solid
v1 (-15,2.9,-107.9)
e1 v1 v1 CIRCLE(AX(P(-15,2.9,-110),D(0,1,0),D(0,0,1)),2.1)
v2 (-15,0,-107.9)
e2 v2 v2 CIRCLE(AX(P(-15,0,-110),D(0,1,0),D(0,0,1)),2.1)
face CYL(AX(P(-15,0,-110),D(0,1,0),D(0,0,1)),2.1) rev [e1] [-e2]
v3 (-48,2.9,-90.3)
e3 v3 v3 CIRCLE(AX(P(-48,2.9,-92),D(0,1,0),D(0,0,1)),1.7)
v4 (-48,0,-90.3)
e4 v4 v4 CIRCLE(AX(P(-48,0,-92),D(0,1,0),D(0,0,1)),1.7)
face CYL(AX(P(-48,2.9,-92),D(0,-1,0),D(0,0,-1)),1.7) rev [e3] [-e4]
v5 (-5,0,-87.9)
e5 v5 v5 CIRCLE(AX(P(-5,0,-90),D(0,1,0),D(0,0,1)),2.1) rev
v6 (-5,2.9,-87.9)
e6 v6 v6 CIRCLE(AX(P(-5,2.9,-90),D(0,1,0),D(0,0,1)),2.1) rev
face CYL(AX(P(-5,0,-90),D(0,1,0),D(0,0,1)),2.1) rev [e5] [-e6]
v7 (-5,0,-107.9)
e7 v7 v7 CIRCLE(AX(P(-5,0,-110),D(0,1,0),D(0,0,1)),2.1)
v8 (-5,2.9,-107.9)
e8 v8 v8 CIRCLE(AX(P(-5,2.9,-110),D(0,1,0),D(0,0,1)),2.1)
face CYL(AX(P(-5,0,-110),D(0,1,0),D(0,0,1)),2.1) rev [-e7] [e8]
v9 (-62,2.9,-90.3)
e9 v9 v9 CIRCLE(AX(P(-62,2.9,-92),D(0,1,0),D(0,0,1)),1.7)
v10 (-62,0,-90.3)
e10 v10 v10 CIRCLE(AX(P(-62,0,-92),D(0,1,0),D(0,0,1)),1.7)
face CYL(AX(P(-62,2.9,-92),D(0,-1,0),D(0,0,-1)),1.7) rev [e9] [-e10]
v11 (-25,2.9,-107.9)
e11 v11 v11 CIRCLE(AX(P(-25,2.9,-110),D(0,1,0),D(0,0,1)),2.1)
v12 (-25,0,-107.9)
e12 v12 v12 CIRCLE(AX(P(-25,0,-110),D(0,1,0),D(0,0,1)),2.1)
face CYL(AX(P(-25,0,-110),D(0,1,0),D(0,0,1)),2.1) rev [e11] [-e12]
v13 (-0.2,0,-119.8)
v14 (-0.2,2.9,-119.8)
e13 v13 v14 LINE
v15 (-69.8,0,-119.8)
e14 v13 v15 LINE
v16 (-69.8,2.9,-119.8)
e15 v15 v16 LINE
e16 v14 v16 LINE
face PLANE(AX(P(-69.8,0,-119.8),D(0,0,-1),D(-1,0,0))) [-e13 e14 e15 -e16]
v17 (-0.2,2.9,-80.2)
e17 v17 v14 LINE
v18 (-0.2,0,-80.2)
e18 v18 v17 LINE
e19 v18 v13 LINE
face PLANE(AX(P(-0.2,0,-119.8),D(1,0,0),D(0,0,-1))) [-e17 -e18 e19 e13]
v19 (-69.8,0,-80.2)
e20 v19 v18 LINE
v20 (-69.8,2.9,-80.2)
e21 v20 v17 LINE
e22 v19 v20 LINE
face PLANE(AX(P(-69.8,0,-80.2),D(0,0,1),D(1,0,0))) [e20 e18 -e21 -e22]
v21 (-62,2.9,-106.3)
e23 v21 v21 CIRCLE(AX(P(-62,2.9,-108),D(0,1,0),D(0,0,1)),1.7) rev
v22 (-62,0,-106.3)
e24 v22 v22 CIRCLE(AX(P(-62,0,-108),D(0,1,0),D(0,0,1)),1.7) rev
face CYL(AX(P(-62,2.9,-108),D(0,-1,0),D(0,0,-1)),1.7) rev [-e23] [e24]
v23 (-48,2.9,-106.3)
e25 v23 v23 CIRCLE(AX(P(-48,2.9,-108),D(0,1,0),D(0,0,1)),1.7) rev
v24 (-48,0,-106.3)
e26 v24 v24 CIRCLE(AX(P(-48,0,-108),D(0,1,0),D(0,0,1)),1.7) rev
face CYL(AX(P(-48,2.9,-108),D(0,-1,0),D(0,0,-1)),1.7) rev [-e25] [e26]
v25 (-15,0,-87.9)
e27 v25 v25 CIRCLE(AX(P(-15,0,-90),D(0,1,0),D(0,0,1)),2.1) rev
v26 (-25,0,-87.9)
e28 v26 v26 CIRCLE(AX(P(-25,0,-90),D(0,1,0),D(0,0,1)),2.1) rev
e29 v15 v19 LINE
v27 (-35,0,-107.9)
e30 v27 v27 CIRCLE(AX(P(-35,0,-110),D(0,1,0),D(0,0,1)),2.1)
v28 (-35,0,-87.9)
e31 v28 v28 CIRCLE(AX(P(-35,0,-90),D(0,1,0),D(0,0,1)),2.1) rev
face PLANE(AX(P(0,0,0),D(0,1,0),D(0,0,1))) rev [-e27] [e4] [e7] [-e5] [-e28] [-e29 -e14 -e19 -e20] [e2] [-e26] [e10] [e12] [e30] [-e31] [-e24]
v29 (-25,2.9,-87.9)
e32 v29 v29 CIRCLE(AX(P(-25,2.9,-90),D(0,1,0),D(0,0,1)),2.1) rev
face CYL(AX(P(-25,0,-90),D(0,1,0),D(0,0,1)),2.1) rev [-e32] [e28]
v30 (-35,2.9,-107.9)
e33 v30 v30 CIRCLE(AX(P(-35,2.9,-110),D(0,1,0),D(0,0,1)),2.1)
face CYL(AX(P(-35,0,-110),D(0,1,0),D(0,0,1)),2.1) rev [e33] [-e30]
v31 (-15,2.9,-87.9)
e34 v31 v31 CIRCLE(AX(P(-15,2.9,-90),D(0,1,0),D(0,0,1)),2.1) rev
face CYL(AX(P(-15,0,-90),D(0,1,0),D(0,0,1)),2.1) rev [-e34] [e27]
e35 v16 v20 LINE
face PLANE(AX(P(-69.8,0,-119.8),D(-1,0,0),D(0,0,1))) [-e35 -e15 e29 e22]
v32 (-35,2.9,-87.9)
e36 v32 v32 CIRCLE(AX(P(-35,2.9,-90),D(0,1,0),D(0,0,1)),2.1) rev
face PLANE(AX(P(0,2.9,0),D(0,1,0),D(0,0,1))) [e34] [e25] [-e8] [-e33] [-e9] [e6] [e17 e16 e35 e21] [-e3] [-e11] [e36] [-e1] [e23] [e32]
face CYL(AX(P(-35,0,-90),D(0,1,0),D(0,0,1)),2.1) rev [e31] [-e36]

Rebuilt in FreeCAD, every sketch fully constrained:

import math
import FreeCAD as App
import Part
import Sketcher
from FreeCAD import Vector

doc = App.newDocument("Part")
body = doc.addObject("PartDesign::Body", "Body")

# Sketch on XZ plane
sketch1 = body.newObject("Sketcher::SketchObject", "Sketch")
sketch1.AttachmentSupport = (doc.getObject("XZ_Plane"), [""])
sketch1.MapMode = "FlatFace"
sketch1.addGeometry(Part.LineSegment(Vector(-70, -80, 0), Vector(-20, -80, 0)), False)
sketch1.addGeometry(Part.LineSegment(Vector(-20, -80, 0), Vector(-20, -120, 0)), False)
sketch1.addGeometry(Part.LineSegment(Vector(-20, -120, 0), Vector(-70, -120, 0)), False)
sketch1.addGeometry(Part.LineSegment(Vector(-70, -120, 0), Vector(-70, -80, 0)), False)
sketch1.addGeometry(Part.ArcOfCircle(Part.Circle(Vector(-48, -92, 0), Vector(0, 0, 1), 1.7), math.radians(90), math.radians(360)), False)
sketch1.addGeometry(Part.ArcOfCircle(Part.Circle(Vector(-48, -92, 0), Vector(0, 0, 1), 1.7), math.radians(0), math.radians(90)), False)
sketch1.addGeometry(Part.ArcOfCircle(Part.Circle(Vector(-62, -92, 0), Vector(0, 0, 1), 1.7), math.radians(180), math.radians(360)), False)
sketch1.addGeometry(Part.ArcOfCircle(Part.Circle(Vector(-62, -92, 0), Vector(0, 0, 1), 1.7), math.radians(0), math.radians(90)), False)
sketch1.addGeometry(Part.ArcOfCircle(Part.Circle(Vector(-62, -92, 0), Vector(0, 0, 1), 1.7), math.radians(90), math.radians(180)), False)
sketch1.addGeometry(Part.Circle(Vector(-62, -108, 0), Vector(0, 0, 1), 1.7), False)
sketch1.addGeometry(Part.Circle(Vector(-48, -108, 0), Vector(0, 0, 1), 1.7), False)
sketch1.addConstraint(Sketcher.Constraint("Coincident", 0, 2, 1, 1))
sketch1.addConstraint(Sketcher.Constraint("Coincident", 1, 2, 2, 1))
sketch1.addConstraint(Sketcher.Constraint("Coincident", 2, 2, 3, 1))
sketch1.addConstraint(Sketcher.Constraint("Coincident", 3, 2, 0, 1))
sketch1.addConstraint(Sketcher.Constraint("Tangent", 4, 1, 5, 2))
sketch1.addConstraint(Sketcher.Constraint("Coincident", 5, 1, 4, 2))
sketch1.addConstraint(Sketcher.Constraint("Tangent", 6, 2, 7, 1))
sketch1.addConstraint(Sketcher.Constraint("Tangent", 7, 2, 8, 1))
sketch1.addConstraint(Sketcher.Constraint("Tangent", 8, 2, 6, 1))
sketch1.addConstraint(Sketcher.Constraint("Horizontal", 0))
sketch1.addConstraint(Sketcher.Constraint("Vertical", 1))
sketch1.addConstraint(Sketcher.Constraint("Horizontal", 2))
sketch1.addConstraint(Sketcher.Constraint("Vertical", 3))
sketch1.addConstraint(Sketcher.Constraint("Equal", 5, 6))
sketch1.addConstraint(Sketcher.Constraint("Equal", 8, 9))
sketch1.addConstraint(Sketcher.Constraint("Equal", 9, 10))
sketch1.addConstraint(Sketcher.Constraint("Horizontal", 5, 3, 6, 3))
sketch1.addConstraint(Sketcher.Constraint("Horizontal", 9, 3, 10, 3))
sketch1.addConstraint(Sketcher.Constraint("Horizontal", 8, 3, 5, 1))
sketch1.addConstraint(Sketcher.Constraint("Horizontal", 5, 1, 6, 2))
sketch1.addConstraint(Sketcher.Constraint("Horizontal", 6, 2, 8, 2))
sketch1.addConstraint(Sketcher.Constraint("Vertical", 8, 3, 9, 3))
sketch1.addConstraint(Sketcher.Constraint("Vertical", 5, 3, 10, 3))
sketch1.addConstraint(Sketcher.Constraint("Vertical", 10, 3, 4, 1))
sketch1.addConstraint(Sketcher.Constraint("Vertical", 9, 3, 7, 2))
sketch1.addConstraint(Sketcher.Constraint("Diameter", 9, 3.4))
sketch1.addConstraint(Sketcher.Constraint("DistanceX", 0, 1, 0, 2, 50.0))
sketch1.addConstraint(Sketcher.Constraint("DistanceY", 1, 2, 1, 1, 40.0))
sketch1.addConstraint(Sketcher.Constraint("DistanceX", 4, 3, -1, 1, 48.0))
sketch1.addConstraint(Sketcher.Constraint("DistanceY", 4, 3, -1, 1, 92.0))
sketch1.addConstraint(Sketcher.Constraint("DistanceX", 6, 3, -1, 1, 62.0))
sketch1.addConstraint(Sketcher.Constraint("DistanceY", 9, 3, -1, 1, 108.0))
sketch1.addConstraint(Sketcher.Constraint("DistanceX", 0, 2, -1, 1, 20.0))
sketch1.addConstraint(Sketcher.Constraint("DistanceY", 0, 2, -1, 1, 80.0))
pad1 = body.newObject("PartDesign::Pad", "Pad")
pad1.Profile = sketch1
pad1.Length = 2.9
pad1.Reversed = True

# Sketch on XZ plane
sketch2 = body.newObject("Sketcher::SketchObject", "Sketch001")
sketch2.AttachmentSupport = (doc.getObject("XZ_Plane"), [""])
sketch2.MapMode = "FlatFace"
sketch2.AttachmentOffset = App.Placement(Vector(0, 0, -2.9), App.Rotation())
sketch2.addGeometry(Part.Circle(Vector(-25, -110, 0), Vector(0, 0, 1), 2.1), False)
sketch2.addGeometry(Part.Circle(Vector(-25, -90, 0), Vector(0, 0, 1), 2.1), False)
sketch2.addGeometry(Part.Circle(Vector(-35, -90, 0), Vector(0, 0, 1), 2.1), False)
sketch2.addGeometry(Part.Circle(Vector(-35, -110, 0), Vector(0, 0, 1), 2.1), False)
sketch2.addConstraint(Sketcher.Constraint("Equal", 0, 1))
sketch2.addConstraint(Sketcher.Constraint("Equal", 1, 2))
sketch2.addConstraint(Sketcher.Constraint("Equal", 2, 3))
sketch2.addConstraint(Sketcher.Constraint("Horizontal", 1, 3, 2, 3))
sketch2.addConstraint(Sketcher.Constraint("Horizontal", 0, 3, 3, 3))
sketch2.addConstraint(Sketcher.Constraint("Vertical", 0, 3, 1, 3))
sketch2.addConstraint(Sketcher.Constraint("Vertical", 2, 3, 3, 3))
sketch2.addConstraint(Sketcher.Constraint("Diameter", 0, 4.2))
sketch2.addConstraint(Sketcher.Constraint("DistanceX", 0, 3, -1, 1, 25.0))
sketch2.addConstraint(Sketcher.Constraint("DistanceY", 0, 3, -1, 1, 110.0))
sketch2.addConstraint(Sketcher.Constraint("DistanceY", 1, 3, -1, 1, 90.0))
sketch2.addConstraint(Sketcher.Constraint("DistanceX", 2, 3, -1, 1, 35.0))
pocket1 = body.newObject("PartDesign::Pocket", "Pocket")
pocket1.Profile = sketch2
pocket1.Length = 2.9
pocket1.Reversed = True

# Sketch on XZ plane
sketch3 = body.newObject("Sketcher::SketchObject", "Sketch002")
sketch3.AttachmentSupport = (doc.getObject("XZ_Plane"), [""])
sketch3.MapMode = "FlatFace"
sketch3.AttachmentOffset = App.Placement(Vector(0, 0, -2.9), App.Rotation())
sketch3.addGeometry(Part.LineSegment(Vector(-20, -120, 0), Vector(-20, -80, 0)), False)
sketch3.addGeometry(Part.LineSegment(Vector(-20, -80, 0), Vector(0, -80, 0)), False)
sketch3.addGeometry(Part.LineSegment(Vector(0, -80, 0), Vector(0, -120, 0)), False)
sketch3.addGeometry(Part.LineSegment(Vector(0, -120, 0), Vector(-20, -120, 0)), False)
sketch3.addGeometry(Part.Circle(Vector(-15, -90, 0), Vector(0, 0, 1), 2.1), False)
sketch3.addGeometry(Part.Circle(Vector(-5, -90, 0), Vector(0, 0, 1), 2.1), False)
sketch3.addGeometry(Part.Circle(Vector(-15, -110, 0), Vector(0, 0, 1), 2.1), False)
sketch3.addGeometry(Part.Circle(Vector(-5, -110, 0), Vector(0, 0, 1), 2.1), False)
sketch3.addConstraint(Sketcher.Constraint("Coincident", 0, 2, 1, 1))
sketch3.addConstraint(Sketcher.Constraint("Coincident", 1, 2, 2, 1))
sketch3.addConstraint(Sketcher.Constraint("Coincident", 2, 2, 3, 1))
sketch3.addConstraint(Sketcher.Constraint("Coincident", 3, 2, 0, 1))
sketch3.addConstraint(Sketcher.Constraint("Vertical", 0))
sketch3.addConstraint(Sketcher.Constraint("Horizontal", 1))
sketch3.addConstraint(Sketcher.Constraint("Vertical", 2))
sketch3.addConstraint(Sketcher.Constraint("Horizontal", 3))
sketch3.addConstraint(Sketcher.Constraint("Equal", 4, 5))
sketch3.addConstraint(Sketcher.Constraint("Equal", 5, 6))
sketch3.addConstraint(Sketcher.Constraint("Equal", 6, 7))
sketch3.addConstraint(Sketcher.Constraint("PointOnObject", 1, 2, -2))
sketch3.addConstraint(Sketcher.Constraint("Horizontal", 4, 3, 5, 3))
sketch3.addConstraint(Sketcher.Constraint("Horizontal", 6, 3, 7, 3))
sketch3.addConstraint(Sketcher.Constraint("Vertical", 4, 3, 6, 3))
sketch3.addConstraint(Sketcher.Constraint("Vertical", 5, 3, 7, 3))
sketch3.addConstraint(Sketcher.Constraint("Diameter", 4, 4.2))
sketch3.addConstraint(Sketcher.Constraint("DistanceX", 1, 1, 1, 2, 20.0))
sketch3.addConstraint(Sketcher.Constraint("DistanceY", 0, 1, 0, 2, 40.0))
sketch3.addConstraint(Sketcher.Constraint("DistanceX", 4, 3, -1, 1, 15.0))
sketch3.addConstraint(Sketcher.Constraint("DistanceY", 4, 3, -1, 1, 90.0))
sketch3.addConstraint(Sketcher.Constraint("DistanceX", 5, 3, -1, 1, 5.0))
sketch3.addConstraint(Sketcher.Constraint("DistanceY", 6, 3, -1, 1, 110.0))
sketch3.addConstraint(Sketcher.Constraint("DistanceY", 0, 2, -1, 1, 80.0))
pad2 = body.newObject("PartDesign::Pad", "Pad001")
pad2.Profile = sketch3
pad2.Length = 2.9

# Sketch on XZ plane
sketch4 = body.newObject("Sketcher::SketchObject", "Sketch003")
sketch4.AttachmentSupport = (doc.getObject("XZ_Plane"), [""])
sketch4.MapMode = "FlatFace"
sketch4.AttachmentOffset = App.Placement(Vector(0, 0, -2.9), App.Rotation())
sketch4.addGeometry(Part.LineSegment(Vector(-70, -120, 0), Vector(-70, -80, 0)), False)
sketch4.addGeometry(Part.LineSegment(Vector(-70, -80, 0), Vector(0, -80, 0)), False)
sketch4.addGeometry(Part.LineSegment(Vector(0, -80, 0), Vector(0, -120, 0)), False)
sketch4.addGeometry(Part.LineSegment(Vector(0, -120, 0), Vector(-70, -120, 0)), False)
sketch4.addGeometry(Part.LineSegment(Vector(-0.2, -80.2, 0), Vector(-69.8, -80.2, 0)), False)
sketch4.addGeometry(Part.LineSegment(Vector(-69.8, -80.2, 0), Vector(-69.8, -119.8, 0)), False)
sketch4.addGeometry(Part.LineSegment(Vector(-69.8, -119.8, 0), Vector(-0.2, -119.8, 0)), False)
sketch4.addGeometry(Part.LineSegment(Vector(-0.2, -119.8, 0), Vector(-0.2, -80.2, 0)), False)
sketch4.addConstraint(Sketcher.Constraint("Coincident", 0, 2, 1, 1))
sketch4.addConstraint(Sketcher.Constraint("Coincident", 1, 2, 2, 1))
sketch4.addConstraint(Sketcher.Constraint("Coincident", 2, 2, 3, 1))
sketch4.addConstraint(Sketcher.Constraint("Coincident", 3, 2, 0, 1))
sketch4.addConstraint(Sketcher.Constraint("Coincident", 4, 2, 5, 1))
sketch4.addConstraint(Sketcher.Constraint("Coincident", 5, 2, 6, 1))
sketch4.addConstraint(Sketcher.Constraint("Coincident", 6, 2, 7, 1))
sketch4.addConstraint(Sketcher.Constraint("Coincident", 7, 2, 4, 1))
sketch4.addConstraint(Sketcher.Constraint("Vertical", 0))
sketch4.addConstraint(Sketcher.Constraint("Horizontal", 1))
sketch4.addConstraint(Sketcher.Constraint("Vertical", 2))
sketch4.addConstraint(Sketcher.Constraint("Horizontal", 3))
sketch4.addConstraint(Sketcher.Constraint("Horizontal", 4))
sketch4.addConstraint(Sketcher.Constraint("Vertical", 5))
sketch4.addConstraint(Sketcher.Constraint("Horizontal", 6))
sketch4.addConstraint(Sketcher.Constraint("Vertical", 7))
sketch4.addConstraint(Sketcher.Constraint("PointOnObject", 1, 2, -2))
sketch4.addConstraint(Sketcher.Constraint("DistanceX", 1, 1, 1, 2, 70.0))
sketch4.addConstraint(Sketcher.Constraint("DistanceY", 0, 1, 0, 2, 40.0))
sketch4.addConstraint(Sketcher.Constraint("DistanceX", 4, 2, 4, 1, 69.6))
sketch4.addConstraint(Sketcher.Constraint("DistanceY", 5, 2, 5, 1, 39.6))
sketch4.addConstraint(Sketcher.Constraint("DistanceY", 0, 2, -1, 1, 80.0))
sketch4.addConstraint(Sketcher.Constraint("DistanceX", 4, 2, -1, 1, 69.8))
sketch4.addConstraint(Sketcher.Constraint("DistanceY", 4, 2, -1, 1, 80.2))
pocket2 = body.newObject("PartDesign::Pocket", "Pocket001")
pocket2.Profile = sketch4
pocket2.Length = 2.9
pocket2.Reversed = True

doc.recompute()
